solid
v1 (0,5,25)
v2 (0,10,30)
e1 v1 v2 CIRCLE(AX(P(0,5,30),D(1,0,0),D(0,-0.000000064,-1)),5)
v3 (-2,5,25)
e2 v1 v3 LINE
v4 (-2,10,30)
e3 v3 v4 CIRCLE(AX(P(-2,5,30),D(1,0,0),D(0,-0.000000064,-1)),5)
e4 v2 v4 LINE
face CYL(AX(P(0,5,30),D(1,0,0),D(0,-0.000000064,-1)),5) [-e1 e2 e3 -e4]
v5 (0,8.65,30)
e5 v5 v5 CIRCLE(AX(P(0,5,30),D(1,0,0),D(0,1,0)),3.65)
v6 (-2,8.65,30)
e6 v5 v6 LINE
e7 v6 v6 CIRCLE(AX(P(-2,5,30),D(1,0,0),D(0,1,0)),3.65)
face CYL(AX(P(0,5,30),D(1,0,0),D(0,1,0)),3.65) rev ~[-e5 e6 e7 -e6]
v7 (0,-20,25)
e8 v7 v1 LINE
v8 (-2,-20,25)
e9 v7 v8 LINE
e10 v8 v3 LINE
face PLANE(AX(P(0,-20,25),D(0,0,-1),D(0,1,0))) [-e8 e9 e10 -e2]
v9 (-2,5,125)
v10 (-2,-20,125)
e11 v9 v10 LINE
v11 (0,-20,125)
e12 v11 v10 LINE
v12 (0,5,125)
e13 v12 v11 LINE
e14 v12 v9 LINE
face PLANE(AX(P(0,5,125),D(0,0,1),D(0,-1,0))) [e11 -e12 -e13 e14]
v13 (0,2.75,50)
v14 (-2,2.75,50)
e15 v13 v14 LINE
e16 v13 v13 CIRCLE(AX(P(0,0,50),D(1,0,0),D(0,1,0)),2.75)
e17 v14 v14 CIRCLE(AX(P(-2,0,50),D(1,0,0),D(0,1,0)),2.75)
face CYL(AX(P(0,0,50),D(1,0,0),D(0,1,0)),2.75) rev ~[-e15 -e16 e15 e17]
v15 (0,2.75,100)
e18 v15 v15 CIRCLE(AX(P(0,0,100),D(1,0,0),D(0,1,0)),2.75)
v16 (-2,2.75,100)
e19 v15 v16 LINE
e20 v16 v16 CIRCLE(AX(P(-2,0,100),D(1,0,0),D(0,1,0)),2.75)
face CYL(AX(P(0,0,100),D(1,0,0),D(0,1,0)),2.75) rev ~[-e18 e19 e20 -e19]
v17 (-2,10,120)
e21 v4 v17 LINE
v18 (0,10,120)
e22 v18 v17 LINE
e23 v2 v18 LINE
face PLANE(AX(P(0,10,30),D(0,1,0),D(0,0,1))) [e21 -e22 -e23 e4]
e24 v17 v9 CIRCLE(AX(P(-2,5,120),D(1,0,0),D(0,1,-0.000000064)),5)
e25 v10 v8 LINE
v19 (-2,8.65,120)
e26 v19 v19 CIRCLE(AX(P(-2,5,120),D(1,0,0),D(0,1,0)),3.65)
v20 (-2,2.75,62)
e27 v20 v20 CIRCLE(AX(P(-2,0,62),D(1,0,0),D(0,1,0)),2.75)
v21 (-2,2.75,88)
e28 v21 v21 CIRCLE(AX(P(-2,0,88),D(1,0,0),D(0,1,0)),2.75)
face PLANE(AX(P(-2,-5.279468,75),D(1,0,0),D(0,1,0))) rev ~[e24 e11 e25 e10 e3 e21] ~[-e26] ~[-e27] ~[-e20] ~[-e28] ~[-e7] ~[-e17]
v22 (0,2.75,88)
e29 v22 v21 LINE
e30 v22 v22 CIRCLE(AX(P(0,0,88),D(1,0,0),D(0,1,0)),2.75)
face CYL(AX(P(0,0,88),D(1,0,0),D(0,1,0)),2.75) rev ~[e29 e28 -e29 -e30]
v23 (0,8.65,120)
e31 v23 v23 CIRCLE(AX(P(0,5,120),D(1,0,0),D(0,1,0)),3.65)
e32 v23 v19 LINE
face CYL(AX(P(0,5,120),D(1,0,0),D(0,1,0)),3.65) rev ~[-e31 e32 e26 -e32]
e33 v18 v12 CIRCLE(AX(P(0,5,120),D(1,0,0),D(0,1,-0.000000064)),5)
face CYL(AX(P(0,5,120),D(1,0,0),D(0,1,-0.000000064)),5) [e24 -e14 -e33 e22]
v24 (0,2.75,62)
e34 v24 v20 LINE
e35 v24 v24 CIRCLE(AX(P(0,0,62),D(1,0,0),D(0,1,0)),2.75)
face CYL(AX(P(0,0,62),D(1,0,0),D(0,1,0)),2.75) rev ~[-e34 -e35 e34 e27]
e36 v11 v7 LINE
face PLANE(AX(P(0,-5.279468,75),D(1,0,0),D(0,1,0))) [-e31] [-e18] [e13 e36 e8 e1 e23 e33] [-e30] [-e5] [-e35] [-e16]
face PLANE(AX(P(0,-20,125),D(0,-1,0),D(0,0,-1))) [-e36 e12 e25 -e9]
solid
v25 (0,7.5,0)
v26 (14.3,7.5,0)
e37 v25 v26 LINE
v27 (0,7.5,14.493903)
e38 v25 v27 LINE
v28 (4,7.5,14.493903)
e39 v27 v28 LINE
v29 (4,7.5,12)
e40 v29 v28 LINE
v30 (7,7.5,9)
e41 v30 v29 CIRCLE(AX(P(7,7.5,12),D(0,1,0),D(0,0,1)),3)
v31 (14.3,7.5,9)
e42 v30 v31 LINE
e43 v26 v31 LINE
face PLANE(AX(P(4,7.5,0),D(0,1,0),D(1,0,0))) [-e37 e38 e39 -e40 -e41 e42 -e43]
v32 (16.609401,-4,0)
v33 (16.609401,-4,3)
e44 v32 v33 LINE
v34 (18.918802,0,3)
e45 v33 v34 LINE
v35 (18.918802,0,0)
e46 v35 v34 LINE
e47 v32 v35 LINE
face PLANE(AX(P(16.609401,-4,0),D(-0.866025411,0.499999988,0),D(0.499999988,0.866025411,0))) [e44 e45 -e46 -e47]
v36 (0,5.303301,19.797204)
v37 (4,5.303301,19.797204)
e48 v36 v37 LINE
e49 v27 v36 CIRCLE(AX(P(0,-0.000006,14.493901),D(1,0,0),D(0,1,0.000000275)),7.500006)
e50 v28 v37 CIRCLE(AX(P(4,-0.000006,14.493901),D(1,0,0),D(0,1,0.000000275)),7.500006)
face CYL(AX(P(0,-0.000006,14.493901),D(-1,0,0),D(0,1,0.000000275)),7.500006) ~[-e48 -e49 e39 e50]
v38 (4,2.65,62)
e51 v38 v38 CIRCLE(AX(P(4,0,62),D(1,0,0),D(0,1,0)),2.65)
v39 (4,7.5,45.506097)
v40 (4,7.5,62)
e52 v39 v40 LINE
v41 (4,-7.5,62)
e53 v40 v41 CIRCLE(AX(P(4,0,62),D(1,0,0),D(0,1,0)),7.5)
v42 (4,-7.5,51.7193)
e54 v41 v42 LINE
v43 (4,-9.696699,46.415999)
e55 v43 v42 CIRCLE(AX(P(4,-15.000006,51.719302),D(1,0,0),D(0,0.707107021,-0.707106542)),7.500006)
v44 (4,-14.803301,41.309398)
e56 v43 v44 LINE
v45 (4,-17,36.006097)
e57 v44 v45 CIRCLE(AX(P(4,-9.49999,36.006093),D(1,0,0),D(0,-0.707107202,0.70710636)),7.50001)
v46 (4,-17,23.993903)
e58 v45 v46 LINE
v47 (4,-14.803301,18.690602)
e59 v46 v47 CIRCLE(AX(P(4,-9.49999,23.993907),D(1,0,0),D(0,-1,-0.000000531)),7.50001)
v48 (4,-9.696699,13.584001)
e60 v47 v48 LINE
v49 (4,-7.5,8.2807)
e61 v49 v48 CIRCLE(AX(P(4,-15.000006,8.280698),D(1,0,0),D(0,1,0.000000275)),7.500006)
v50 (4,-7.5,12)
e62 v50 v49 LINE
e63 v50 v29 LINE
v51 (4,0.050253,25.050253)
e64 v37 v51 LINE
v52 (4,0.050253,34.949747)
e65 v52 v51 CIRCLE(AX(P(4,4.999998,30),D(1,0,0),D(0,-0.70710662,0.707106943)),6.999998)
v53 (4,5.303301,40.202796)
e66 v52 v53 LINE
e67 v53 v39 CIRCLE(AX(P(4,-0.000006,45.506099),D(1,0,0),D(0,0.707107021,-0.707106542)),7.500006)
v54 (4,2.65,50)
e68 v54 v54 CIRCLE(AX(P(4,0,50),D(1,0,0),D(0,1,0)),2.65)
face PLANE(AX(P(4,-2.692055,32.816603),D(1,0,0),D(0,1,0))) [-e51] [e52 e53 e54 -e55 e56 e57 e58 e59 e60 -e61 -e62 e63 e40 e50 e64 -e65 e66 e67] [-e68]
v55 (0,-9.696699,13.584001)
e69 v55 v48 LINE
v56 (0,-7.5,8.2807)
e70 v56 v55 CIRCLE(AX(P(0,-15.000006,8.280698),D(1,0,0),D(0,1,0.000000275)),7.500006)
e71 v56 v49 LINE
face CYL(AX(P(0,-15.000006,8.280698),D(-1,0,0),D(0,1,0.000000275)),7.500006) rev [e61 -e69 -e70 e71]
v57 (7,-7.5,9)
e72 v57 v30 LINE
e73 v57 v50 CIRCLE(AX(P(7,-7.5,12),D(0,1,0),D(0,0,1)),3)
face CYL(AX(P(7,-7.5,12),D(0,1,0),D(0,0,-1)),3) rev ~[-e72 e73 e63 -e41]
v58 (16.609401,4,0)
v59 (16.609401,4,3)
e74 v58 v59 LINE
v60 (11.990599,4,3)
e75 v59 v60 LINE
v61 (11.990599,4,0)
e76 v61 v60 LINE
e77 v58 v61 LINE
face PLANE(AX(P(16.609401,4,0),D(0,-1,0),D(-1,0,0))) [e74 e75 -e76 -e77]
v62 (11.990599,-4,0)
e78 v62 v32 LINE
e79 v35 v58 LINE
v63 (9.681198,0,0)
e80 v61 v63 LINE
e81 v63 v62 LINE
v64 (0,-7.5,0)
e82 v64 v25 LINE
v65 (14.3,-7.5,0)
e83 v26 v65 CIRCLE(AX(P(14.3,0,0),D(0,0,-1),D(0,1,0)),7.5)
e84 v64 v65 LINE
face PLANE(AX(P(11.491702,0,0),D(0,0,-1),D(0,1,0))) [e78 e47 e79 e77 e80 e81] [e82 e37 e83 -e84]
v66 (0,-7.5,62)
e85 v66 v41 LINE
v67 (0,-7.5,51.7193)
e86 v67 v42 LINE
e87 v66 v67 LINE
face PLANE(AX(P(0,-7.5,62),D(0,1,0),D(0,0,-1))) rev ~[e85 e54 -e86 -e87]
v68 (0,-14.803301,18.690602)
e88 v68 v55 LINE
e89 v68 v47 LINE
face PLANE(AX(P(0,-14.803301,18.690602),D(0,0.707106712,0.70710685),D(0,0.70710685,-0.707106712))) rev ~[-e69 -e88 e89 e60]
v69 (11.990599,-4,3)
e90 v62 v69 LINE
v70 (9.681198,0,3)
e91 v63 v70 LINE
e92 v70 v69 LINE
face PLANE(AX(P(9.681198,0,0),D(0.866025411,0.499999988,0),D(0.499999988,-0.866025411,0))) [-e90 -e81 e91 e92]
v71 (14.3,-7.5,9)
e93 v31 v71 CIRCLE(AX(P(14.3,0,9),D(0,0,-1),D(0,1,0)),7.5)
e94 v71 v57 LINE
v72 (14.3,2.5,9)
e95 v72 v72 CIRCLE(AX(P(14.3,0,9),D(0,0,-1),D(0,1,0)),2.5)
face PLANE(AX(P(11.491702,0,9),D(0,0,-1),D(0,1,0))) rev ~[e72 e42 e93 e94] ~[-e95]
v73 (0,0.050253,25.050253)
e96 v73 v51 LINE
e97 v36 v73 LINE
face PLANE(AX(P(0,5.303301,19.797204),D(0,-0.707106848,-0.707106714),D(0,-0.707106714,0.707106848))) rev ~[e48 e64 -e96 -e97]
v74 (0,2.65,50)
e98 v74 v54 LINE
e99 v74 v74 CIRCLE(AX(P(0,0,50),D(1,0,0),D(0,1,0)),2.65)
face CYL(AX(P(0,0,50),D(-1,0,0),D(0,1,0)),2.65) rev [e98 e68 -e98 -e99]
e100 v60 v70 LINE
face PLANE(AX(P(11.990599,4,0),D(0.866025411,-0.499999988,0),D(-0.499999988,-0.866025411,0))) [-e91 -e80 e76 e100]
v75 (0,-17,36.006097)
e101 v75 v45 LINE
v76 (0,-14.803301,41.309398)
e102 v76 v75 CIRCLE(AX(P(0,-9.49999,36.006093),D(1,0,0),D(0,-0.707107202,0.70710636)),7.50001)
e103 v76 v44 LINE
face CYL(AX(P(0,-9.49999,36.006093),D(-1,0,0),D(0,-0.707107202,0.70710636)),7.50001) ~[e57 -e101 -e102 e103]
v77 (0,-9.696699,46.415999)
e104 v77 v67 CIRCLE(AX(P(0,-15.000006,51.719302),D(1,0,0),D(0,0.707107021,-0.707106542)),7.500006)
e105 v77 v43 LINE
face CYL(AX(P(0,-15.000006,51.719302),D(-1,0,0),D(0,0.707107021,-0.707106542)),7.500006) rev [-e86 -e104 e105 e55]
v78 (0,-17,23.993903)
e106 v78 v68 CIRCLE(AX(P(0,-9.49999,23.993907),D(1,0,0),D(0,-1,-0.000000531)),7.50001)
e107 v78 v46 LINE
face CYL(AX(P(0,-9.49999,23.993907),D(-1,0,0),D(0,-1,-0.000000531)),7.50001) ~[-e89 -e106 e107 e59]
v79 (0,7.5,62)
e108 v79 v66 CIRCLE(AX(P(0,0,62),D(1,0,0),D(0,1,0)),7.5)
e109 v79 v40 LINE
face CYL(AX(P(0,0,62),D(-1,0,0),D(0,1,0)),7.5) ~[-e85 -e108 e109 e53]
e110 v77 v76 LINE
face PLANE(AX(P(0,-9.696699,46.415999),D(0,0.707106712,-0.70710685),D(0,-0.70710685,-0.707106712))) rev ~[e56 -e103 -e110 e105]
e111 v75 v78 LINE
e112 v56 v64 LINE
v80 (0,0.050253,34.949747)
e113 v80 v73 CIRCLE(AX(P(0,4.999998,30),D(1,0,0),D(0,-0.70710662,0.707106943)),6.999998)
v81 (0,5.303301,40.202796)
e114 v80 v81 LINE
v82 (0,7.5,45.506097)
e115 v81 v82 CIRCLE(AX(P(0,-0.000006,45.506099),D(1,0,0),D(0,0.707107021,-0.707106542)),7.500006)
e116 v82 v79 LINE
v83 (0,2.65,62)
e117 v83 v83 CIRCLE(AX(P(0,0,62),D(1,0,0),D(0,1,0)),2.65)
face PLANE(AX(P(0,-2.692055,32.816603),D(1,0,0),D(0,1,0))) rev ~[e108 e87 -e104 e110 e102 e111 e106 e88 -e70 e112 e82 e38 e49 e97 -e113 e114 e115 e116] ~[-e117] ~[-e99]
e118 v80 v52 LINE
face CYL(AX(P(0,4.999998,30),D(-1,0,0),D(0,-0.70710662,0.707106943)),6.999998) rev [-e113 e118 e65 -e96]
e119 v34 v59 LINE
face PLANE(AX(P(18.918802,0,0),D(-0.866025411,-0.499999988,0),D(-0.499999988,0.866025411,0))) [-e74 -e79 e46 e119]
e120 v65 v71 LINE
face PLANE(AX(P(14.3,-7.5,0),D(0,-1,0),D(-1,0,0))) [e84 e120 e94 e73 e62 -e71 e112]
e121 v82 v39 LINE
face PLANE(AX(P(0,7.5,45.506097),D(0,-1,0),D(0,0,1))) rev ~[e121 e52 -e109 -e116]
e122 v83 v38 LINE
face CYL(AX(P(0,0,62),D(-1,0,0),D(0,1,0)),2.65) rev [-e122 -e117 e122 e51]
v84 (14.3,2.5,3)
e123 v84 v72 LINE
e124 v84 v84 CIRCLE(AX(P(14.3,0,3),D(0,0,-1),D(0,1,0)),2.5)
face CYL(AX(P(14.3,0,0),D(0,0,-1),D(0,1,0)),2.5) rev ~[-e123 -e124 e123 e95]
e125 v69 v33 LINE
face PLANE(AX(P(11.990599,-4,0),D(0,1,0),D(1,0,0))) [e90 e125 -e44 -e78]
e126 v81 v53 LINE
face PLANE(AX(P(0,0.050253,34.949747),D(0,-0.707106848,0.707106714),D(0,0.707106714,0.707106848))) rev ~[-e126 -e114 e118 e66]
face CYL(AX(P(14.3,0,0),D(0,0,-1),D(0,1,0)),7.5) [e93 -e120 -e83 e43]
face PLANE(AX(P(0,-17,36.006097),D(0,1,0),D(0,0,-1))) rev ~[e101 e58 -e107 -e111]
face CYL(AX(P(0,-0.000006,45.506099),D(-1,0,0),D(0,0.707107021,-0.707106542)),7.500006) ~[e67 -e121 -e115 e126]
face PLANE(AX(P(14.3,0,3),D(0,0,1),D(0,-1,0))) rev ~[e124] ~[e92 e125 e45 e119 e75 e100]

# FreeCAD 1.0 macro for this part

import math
import FreeCAD as App
import Part
import Sketcher
from FreeCAD import Vector
Q = App.Units.Quantity


def edges_at(feature, points):
    """Names of the edges that pass closest to the given points."""
    edges = feature.Shape.Edges
    near = lambda p: min(range(len(edges)), key=lambda i: edges[i].distToShape(Part.Vertex(*p))[0])
    return sorted({f"Edge{near(p) + 1}" for p in points})


def add_polygon(sketch, points):
    """Adds a closed chain of lines whose ends are joined by coincident constraints."""
    first, n = sketch.GeometryCount, len(points)
    for a, b in zip(points, points[1:] + points[:1]):
        sketch.addGeometry(Part.LineSegment(App.Vector(*a, 0), App.Vector(*b, 0)), False)
    for i in range(n):
        sketch.addConstraint(Sketcher.Constraint("Coincident", first + i, 2, first + (i + 1) % n, 1))

doc = App.newDocument("Part")
params = doc.addObject("Spreadsheet::Sheet", "Params")
for row, (alias, value) in enumerate([
    ("sketch1_radius", "5 mm"),
    ("sketch1_diameter", "5.5 mm"),
    ("sketch1_diameter2", "7.3 mm"),
    ("sketch1_width", "25 mm"),
    ("sketch1_height", "90 mm"),
    ("pad1_length", "2 mm"),
    ("sketch2_diameter", "5.3 mm"),
    ("sketch2_radius", "7.5 mm"),
    ("pad2_length", "4 mm"),
    ("sketch3_diameter", "5 mm"),
    ("sketch3_radius", "7.5 mm"),
    ("sketch3_width", "10.3 mm"),
    ("pad3_length", "9 mm"),
    ("pocket1_length", "3 mm"),
    ("fillet_radius", "3 mm"),
], start=1):
    params.set(f"A{row}", alias)
    params.set(f"B{row}", "=" + value)
    params.setAlias(f"B{row}", alias)

body = doc.addObject("PartDesign::Body", "Body")

# Sketch on YZ plane
sketch1 = body.newObject("Sketcher::SketchObject", "Sketch")
sketch1.AttachmentSupport = (doc.getObject("YZ_Plane"), [""])
sketch1.MapMode = "FlatFace"
sketch1.addGeometry([
    Part.LineSegment(Vector(-20, 25, 0), Vector(5, 25, 0)),  # 0
    Part.ArcOfCircle(Part.Circle(Vector(5, 30, 0), Vector(0, 0, 1), 5), math.radians(-90), math.radians(0)),  # 1
    Part.LineSegment(Vector(10, 30, 0), Vector(10, 120, 0)),  # 2
    Part.ArcOfCircle(Part.Circle(Vector(5, 120, 0), Vector(0, 0, 1), 5), math.radians(0), math.radians(90)),  # 3
    Part.LineSegment(Vector(5, 125, 0), Vector(-20, 125, 0)),  # 4
    Part.LineSegment(Vector(-20, 125, 0), Vector(-20, 25, 0)),  # 5
    Part.Circle(Vector(0, 50, 0), Vector(0, 0, 1), 2.8),  # 6
    Part.Circle(Vector(0, 62, 0), Vector(0, 0, 1), 2.8),  # 7
    Part.Circle(Vector(5, 30, 0), Vector(0, 0, 1), 3.6),  # 8
    Part.Circle(Vector(0, 88, 0), Vector(0, 0, 1), 2.8),  # 9
    Part.Circle(Vector(0, 100, 0), Vector(0, 0, 1), 2.8),  # 10
    Part.Circle(Vector(5, 120, 0), Vector(0, 0, 1), 3.6),  # 11
], False)
sketch1.addConstraint([
    Sketcher.Constraint("Tangent", 0, 2, 1, 1),
    Sketcher.Constraint("Tangent", 1, 2, 2, 1),
    Sketcher.Constraint("Tangent", 2, 2, 3, 1),
    Sketcher.Constraint("Tangent", 3, 2, 4, 1),
    Sketcher.Constraint("Coincident", 4, 2, 5, 1),
    Sketcher.Constraint("Coincident", 5, 2, 0, 1),
    Sketcher.Constraint("Horizontal", 0),
    Sketcher.Constraint("Vertical", 2),
    Sketcher.Constraint("Horizontal", 4),
    Sketcher.Constraint("Vertical", 5),
    Sketcher.Constraint("Coincident", 8, 3, 1, 3),
    Sketcher.Constraint("Coincident", 11, 3, 3, 3),
    Sketcher.Constraint("Equal", 1, 3),
    Sketcher.Constraint("Equal", 6, 7),
    Sketcher.Constraint("Equal", 7, 9),
    Sketcher.Constraint("Equal", 9, 10),
    Sketcher.Constraint("Equal", 8, 11),
    Sketcher.Constraint("PointOnObject", 6, 3, -2),
    Sketcher.Constraint("PointOnObject", 7, 3, -2),
    Sketcher.Constraint("PointOnObject", 9, 3, -2),
    Sketcher.Constraint("PointOnObject", 10, 3, -2),
    Sketcher.Constraint("Radius", 1, 5.0),
    Sketcher.Constraint("Diameter", 6, 5.5),
    Sketcher.Constraint("Diameter", 8, 7.3),
    Sketcher.Constraint("DistanceX", 0, 1, 0, 2, 25.0),
    Sketcher.Constraint("DistanceY", 2, 1, 2, 2, 90.0),
    Sketcher.Constraint("DistanceX", -1, 1, 1, 3, 5.0),
    Sketcher.Constraint("DistanceY", -1, 1, 1, 3, 30.0),
    Sketcher.Constraint("DistanceY", -1, 1, 6, 3, 50.0),
    Sketcher.Constraint("DistanceY", -1, 1, 7, 3, 62.0),
    Sketcher.Constraint("DistanceY", -1, 1, 9, 3, 88.0),
    Sketcher.Constraint("DistanceY", -1, 1, 10, 3, 100.0),
])
sketch1.setExpression("Constraints[21]", "Params.sketch1_radius")
sketch1.setExpression("Constraints[22]", "Params.sketch1_diameter")
sketch1.setExpression("Constraints[23]", "Params.sketch1_diameter2")
sketch1.setExpression("Constraints[24]", "Params.sketch1_width")
sketch1.setExpression("Constraints[25]", "Params.sketch1_height")
pad1 = body.newObject("PartDesign::Pad", "Pad")
pad1.Profile = sketch1
pad1.setExpression("Length", "Params.pad1_length")
pad1.Reversed = True
body2 = doc.addObject("PartDesign::Body", "Body001")

# Sketch on YZ plane
sketch2 = body2.newObject("Sketcher::SketchObject", "Sketch001")
sketch2.AttachmentSupport = (doc.getObject("YZ_Plane001"), [""])
sketch2.MapMode = "FlatFace"
sketch2.addGeometry([
    Part.LineSegment(Vector(-7.5, 62, 0), Vector(-7.5, 51.7, 0)),  # 0
    Part.ArcOfCircle(Part.Circle(Vector(-15, 51.7, 0), Vector(0, 0, 1), 7.5), math.radians(-45), math.radians(0)),  # 1
    Part.LineSegment(Vector(-9.7, 46.4, 0), Vector(-14.8, 41.3, 0)),  # 2
    Part.ArcOfCircle(Part.Circle(Vector(-9.5, 36, 0), Vector(0, 0, 1), 7.5), math.radians(135), math.radians(180)),  # 3
    Part.LineSegment(Vector(-17, 36, 0), Vector(-17, 24, 0)),  # 4
    Part.ArcOfCircle(Part.Circle(Vector(-9.5, 24, 0), Vector(0, 0, 1), 7.5), math.radians(-180), math.radians(-135)),  # 5
    Part.LineSegment(Vector(-14.8, 18.7, 0), Vector(-9.7, 13.6, 0)),  # 6
    Part.ArcOfCircle(Part.Circle(Vector(-15, 8.3, 0), Vector(0, 0, 1), 7.5), math.radians(0), math.radians(45)),  # 7
    Part.LineSegment(Vector(-7.5, 8.3, 0), Vector(-7.5, 0, 0)),  # 8
    Part.LineSegment(Vector(-7.5, 0, 0), Vector(7.5, 0, 0)),  # 9
    Part.LineSegment(Vector(7.5, 0, 0), Vector(7.5, 14.5, 0)),  # 10
    Part.ArcOfCircle(Part.Circle(Vector(0, 14.5, 0), Vector(0, 0, 1), 7.5), math.radians(0), math.radians(45)),  # 11
    Part.LineSegment(Vector(5.3, 19.8, 0), Vector(0.1, 25.1, 0)),  # 12
    Part.ArcOfCircle(Part.Circle(Vector(5, 30, 0), Vector(0, 0, 1), 7), math.radians(135), math.radians(225)),  # 13
    Part.LineSegment(Vector(0.1, 34.9, 0), Vector(5.3, 40.2, 0)),  # 14
    Part.ArcOfCircle(Part.Circle(Vector(0, 45.5, 0), Vector(0, 0, 1), 7.5), math.radians(-45), math.radians(0)),  # 15
    Part.LineSegment(Vector(7.5, 45.5, 0), Vector(7.5, 62, 0)),  # 16
    Part.ArcOfCircle(Part.Circle(Vector(0, 62, 0), Vector(0, 0, 1), 7.5), math.radians(0), math.radians(180)),  # 17
    Part.Circle(Vector(0, 50, 0), Vector(0, 0, 1), 2.6),  # 18
    Part.Circle(Vector(0, 62, 0), Vector(0, 0, 1), 2.6),  # 19
], False)
sketch2.addConstraint([
    Sketcher.Constraint("Tangent", 0, 2, 1, 2),
    Sketcher.Constraint("Tangent", 1, 1, 2, 1),
    Sketcher.Constraint("Tangent", 2, 2, 3, 1),
    Sketcher.Constraint("Tangent", 3, 2, 4, 1),
    Sketcher.Constraint("Tangent", 4, 2, 5, 1),
    Sketcher.Constraint("Tangent", 5, 2, 6, 1),
    Sketcher.Constraint("Tangent", 6, 2, 7, 2),
    Sketcher.Constraint("Tangent", 7, 1, 8, 1),
    Sketcher.Constraint("Coincident", 8, 2, 9, 1),
    Sketcher.Constraint("Coincident", 9, 2, 10, 1),
    Sketcher.Constraint("Tangent", 10, 2, 11, 1),
    Sketcher.Constraint("Tangent", 11, 2, 12, 1),
    Sketcher.Constraint("Tangent", 12, 2, 13, 2),
    Sketcher.Constraint("Tangent", 13, 1, 14, 1),
    Sketcher.Constraint("Tangent", 14, 2, 15, 1),
    Sketcher.Constraint("Tangent", 15, 2, 16, 1),
    Sketcher.Constraint("Tangent", 16, 2, 17, 1),
    Sketcher.Constraint("Tangent", 17, 2, 0, 1),
    Sketcher.Constraint("Vertical", 0),
    Sketcher.Constraint("Vertical", 4),
    Sketcher.Constraint("Vertical", 8),
    Sketcher.Constraint("Horizontal", 9),
    Sketcher.Constraint("Vertical", 10),
    Sketcher.Constraint("Vertical", 16),
    Sketcher.Constraint("Coincident", 19, 3, 17, 3),
    Sketcher.Constraint("Equal", 3, 5),
    Sketcher.Constraint("Equal", 1, 7),
    Sketcher.Constraint("Equal", 7, 11),
    Sketcher.Constraint("Equal", 11, 15),
    Sketcher.Constraint("Equal", 18, 19),
    Sketcher.Constraint("Symmetric", 8, 2, 9, 2, -1, 1),
    Sketcher.Constraint("PointOnObject", 17, 3, -2),
    Sketcher.Constraint("PointOnObject", 18, 3, -2),
    Sketcher.Constraint("Perpendicular", 2, 6),
    Sketcher.Constraint("Parallel", 6, 12),
    Sketcher.Constraint("Perpendicular", 12, 14),
    Sketcher.Constraint("Vertical", 1, 3, 7, 3),
    Sketcher.Constraint("Vertical", 2, 2, 5, 2),
    Sketcher.Constraint("Diameter", 18, 5.3),
    Sketcher.Constraint("Radius", 17, 7.5),
    Sketcher.Constraint("DistanceY", -1, 1, 13, 3, 30.0),
    Sketcher.Constraint("DistanceY", -1, 1, 17, 3, 62.0),
    Sketcher.Constraint("DistanceY", -1, 1, 18, 3, 50.0),
    Sketcher.Constraint("DistanceX", 3, 2, -1, 1, 17.0),
    Sketcher.Constraint("Radius", 3, 7.50001),
    Sketcher.Constraint("DistanceY", 0, 2, 0, 1, 10.2807),
    Sketcher.Constraint("DistanceY", 8, 2, 8, 1, 8.2807),
    Sketcher.Constraint("DistanceY", -1, 1, 1, 1, 46.415999),
    Sketcher.Constraint("Radius", 13, 6.999998),
    Sketcher.Constraint("DistanceY", -1, 1, 11, 3, 14.493901),
])
sketch2.setExpression("Constraints[38]", "Params.sketch2_diameter")
sketch2.setExpression("Constraints[39]", "Params.sketch2_radius")
pad2 = body2.newObject("PartDesign::Pad", "Pad001")
pad2.Profile = sketch2
pad2.setExpression("Length", "Params.pad2_length")

# Sketch on XY plane
sketch3 = body2.newObject("Sketcher::SketchObject", "Sketch002")
sketch3.AttachmentSupport = (doc.getObject("XY_Plane001"), [""])
sketch3.MapMode = "FlatFace"
sketch3.addGeometry([
    Part.LineSegment(Vector(14.3, -7.5, 0), Vector(4, -7.5, 0)),  # 0
    Part.LineSegment(Vector(4, -7.5, 0), Vector(4, 7.5, 0)),  # 1
    Part.LineSegment(Vector(4, 7.5, 0), Vector(14.3, 7.5, 0)),  # 2
    Part.ArcOfCircle(Part.Circle(Vector(14.3, 0, 0), Vector(0, 0, 1), 7.5), math.radians(-90), math.radians(90)),  # 3
    Part.Circle(Vector(14.3, 0, 0), Vector(0, 0, 1), 2.5),  # 4
], False)
sketch3.addConstraint([
    Sketcher.Constraint("Coincident", 0, 2, 1, 1),
    Sketcher.Constraint("Coincident", 1, 2, 2, 1),
    Sketcher.Constraint("Tangent", 2, 2, 3, 2),
    Sketcher.Constraint("Tangent", 3, 1, 0, 1),
    Sketcher.Constraint("Horizontal", 0),
    Sketcher.Constraint("Vertical", 1),
    Sketcher.Constraint("Horizontal", 2),
    Sketcher.Constraint("Coincident", 4, 3, 3, 3),
    Sketcher.Constraint("PointOnObject", 3, 3, -1),
    Sketcher.Constraint("Diameter", 4, 5.0),
    Sketcher.Constraint("Radius", 3, 7.5),
    Sketcher.Constraint("DistanceX", 0, 2, 0, 1, 10.3),
    Sketcher.Constraint("DistanceX", -1, 1, 0, 2, 4.0),
])
sketch3.setExpression("Constraints[9]", "Params.sketch3_diameter")
sketch3.setExpression("Constraints[10]", "Params.sketch3_radius")
sketch3.setExpression("Constraints[11]", "Params.sketch3_width")
pad3 = body2.newObject("PartDesign::Pad", "Pad002")
pad3.Profile = sketch3
pad3.setExpression("Length", "Params.pad3_length")

# Sketch on XY plane
sketch4 = body2.newObject("Sketcher::SketchObject", "Sketch003")
sketch4.AttachmentSupport = (doc.getObject("XY_Plane001"), [""])
sketch4.MapMode = "FlatFace"
add_polygon(sketch4, [(16.6, -4), (12, -4), (9.7, 0), (12, 4), (16.6, 4), (18.9, 0)])  # lines 0-5
sketch4.addConstraint([
    Sketcher.Constraint("Horizontal", 0),
    Sketcher.Constraint("Horizontal", 3),
    Sketcher.Constraint("Symmetric", 0, 2, 2, 2, -1),
    Sketcher.Constraint("PointOnObject", 1, 2, -1),
    Sketcher.Constraint("PointOnObject", 4, 2, -1),
    Sketcher.Constraint("Parallel", 1, 4),
    Sketcher.Constraint("Parallel", 2, 5),
    Sketcher.Constraint("Angle", 1, Q("119.999999 deg")),
    Sketcher.Constraint("DistanceY", 0, 2, -1, 1, 4.0),
    Sketcher.Constraint("DistanceX", 0, 2, 0, 1, 4.618802),
    Sketcher.Constraint("DistanceX", -1, 1, 0, 2, 11.990599),
])
pocket1 = body2.newObject("PartDesign::Pocket", "Pocket")
pocket1.Profile = sketch4
pocket1.setExpression("Length", "Params.pocket1_length")
pocket1.Reversed = True
doc.recompute()

fillet = body2.newObject("PartDesign::Fillet", "Fillet")
fillet.Base = (pocket1, edges_at(pocket1, [(4, 0, 9)]))
fillet.setExpression("Radius", "Params.fillet_radius")

doc.recompute()
